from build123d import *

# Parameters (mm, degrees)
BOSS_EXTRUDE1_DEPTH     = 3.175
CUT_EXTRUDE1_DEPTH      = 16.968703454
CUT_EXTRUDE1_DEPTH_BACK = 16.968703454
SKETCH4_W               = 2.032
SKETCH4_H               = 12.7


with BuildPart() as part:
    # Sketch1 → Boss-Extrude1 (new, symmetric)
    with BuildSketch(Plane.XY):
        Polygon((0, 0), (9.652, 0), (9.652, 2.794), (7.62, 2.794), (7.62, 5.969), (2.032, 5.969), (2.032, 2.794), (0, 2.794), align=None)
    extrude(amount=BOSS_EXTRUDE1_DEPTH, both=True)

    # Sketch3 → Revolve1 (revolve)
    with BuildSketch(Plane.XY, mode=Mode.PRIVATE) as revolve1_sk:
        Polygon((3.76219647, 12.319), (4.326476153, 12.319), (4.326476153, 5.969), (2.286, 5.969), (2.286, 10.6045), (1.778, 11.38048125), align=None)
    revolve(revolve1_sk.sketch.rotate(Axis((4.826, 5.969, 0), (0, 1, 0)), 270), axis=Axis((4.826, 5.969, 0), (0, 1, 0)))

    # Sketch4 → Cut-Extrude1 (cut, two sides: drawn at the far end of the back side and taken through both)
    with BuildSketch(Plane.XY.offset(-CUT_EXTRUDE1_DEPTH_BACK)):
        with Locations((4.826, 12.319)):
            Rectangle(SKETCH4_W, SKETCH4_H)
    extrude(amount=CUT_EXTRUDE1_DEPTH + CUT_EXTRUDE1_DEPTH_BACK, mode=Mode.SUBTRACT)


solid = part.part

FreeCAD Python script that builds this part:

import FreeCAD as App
import Part
import Sketcher

V = App.Vector
Q = App.Units.Quantity


def add_polygon(sketch, points):
    """Adds a closed chain of lines whose ends are joined by coincident constraints."""
    first, n = sketch.GeometryCount, len(points)
    for a, b in zip(points, points[1:] + points[:1]):
        sketch.addGeometry(Part.LineSegment(App.Vector(*a, 0), App.Vector(*b, 0)), False)
    for i in range(n):
        sketch.addConstraint(Sketcher.Constraint("Coincident", first + i, 2, first + (i + 1) % n, 1))

doc = App.newDocument("Part")
body = doc.addObject("PartDesign::Body", "Body")

# Sketch on XY plane
sketch1 = body.newObject("Sketcher::SketchObject", "Sketch")
sketch1.AttachmentSupport = (doc.getObject("XY_Plane"), [""])
sketch1.MapMode = "FlatFace"
add_polygon(sketch1, [(0, 0), (9.7, 0), (9.7, 2.8), (7.6, 2.8), (7.6, 6), (2, 6), (2, 2.8), (0, 2.8)])  # lines 0-7
sketch1.addConstraint(Sketcher.Constraint("Horizontal", 0))
sketch1.addConstraint(Sketcher.Constraint("Vertical", 1))
sketch1.addConstraint(Sketcher.Constraint("Horizontal", 2))
sketch1.addConstraint(Sketcher.Constraint("Vertical", 3))
sketch1.addConstraint(Sketcher.Constraint("Horizontal", 4))
sketch1.addConstraint(Sketcher.Constraint("Vertical", 5))
sketch1.addConstraint(Sketcher.Constraint("Horizontal", 6))
sketch1.addConstraint(Sketcher.Constraint("Vertical", 7))
sketch1.addConstraint(Sketcher.Constraint("Coincident", 7, 2, -1, 1))
sketch1.addConstraint(Sketcher.Constraint("Horizontal", 2, 2, 5, 2))
sketch1.addConstraint(Sketcher.Constraint("Equal", 2, 6))
sketch1.addConstraint(Sketcher.Constraint("DistanceX", 0, 1, 0, 2, Q("0.38 in")))
sketch1.addConstraint(Sketcher.Constraint("DistanceX", 2, 2, 2, 1, Q("0.08 in")))
sketch1.addConstraint(Sketcher.Constraint("DistanceY", 1, 1, 1, 2, Q("0.11 in")))
sketch1.addConstraint(Sketcher.Constraint("DistanceY", 3, 1, 3, 2, Q("0.125 in")))
pad1 = body.newObject("PartDesign::Pad", "Pad")
pad1.Profile = sketch1
pad1.Length = Q("0.25 in")
pad1.Midplane = True

# Sketch on XY plane
sketch2 = body.newObject("Sketcher::SketchObject", "Sketch001")
sketch2.AttachmentSupport = (doc.getObject("XY_Plane"), [""])
sketch2.MapMode = "FlatFace"
add_polygon(sketch2, [(4.3, 12.3), (3.8, 12.3), (1.8, 11.4), (2.3, 10.6), (2.3, 6), (4.3, 6)])  # lines 0-5
sketch2.addGeometry(Part.LineSegment(V(4.8, 6, 0), V(4.8, 12.3, 0)), True)  # axis
sketch2.addConstraint(Sketcher.Constraint("Horizontal", 0))
sketch2.addConstraint(Sketcher.Constraint("Vertical", 3))
sketch2.addConstraint(Sketcher.Constraint("Horizontal", 4))
sketch2.addConstraint(Sketcher.Constraint("Vertical", 5))
sketch2.addConstraint(Sketcher.Constraint("Vertical", 6))
sketch2.addConstraint(Sketcher.Constraint("Horizontal", 4, 2, 6, 1))
sketch2.addConstraint(Sketcher.Constraint("Horizontal", 5, 2, 6, 2))
sketch2.addConstraint(Sketcher.Constraint("DistanceY", 5, 1, 5, 2, Q("0.25 in")))
sketch2.addConstraint(Sketcher.Constraint("DistanceX", 3, 2, 6, 1, Q("0.1 in")))
sketch2.addConstraint(Sketcher.Constraint("DistanceX", -1, 1, 1, 2, Q("0.07 in")))
sketch2.addConstraint(Sketcher.Constraint("DistanceX", -1, 1, 2, 2, Q("0.09 in")))
sketch2.addConstraint(Sketcher.Constraint("DistanceY", 3, 2, 3, 1, Q("0.1825 in")))
sketch2.addConstraint(Sketcher.Constraint("DistanceY", -1, 1, 0, 2, Q("0.485 in")))
sketch2.addConstraint(Sketcher.Constraint("DistanceX", 0, 2, 0, 1, 0.56428))
sketch2.addConstraint(Sketcher.Constraint("Distance", 1, 2.194961))
sketch2.addConstraint(Sketcher.Constraint("DistanceX", 4, 1, 4, 2, 2.040476))
revolution = body.newObject("PartDesign::Revolution", "Revolution")
revolution.Profile = sketch2
revolution.ReferenceAxis = (sketch2, ["Axis0"])
revolution.Angle = 360

# Sketch on XY plane
sketch3 = body.newObject("Sketcher::SketchObject", "Sketch002")
sketch3.AttachmentSupport = (doc.getObject("XY_Plane"), [""])
sketch3.MapMode = "FlatFace"
add_polygon(sketch3, [(3.8, 18.7), (3.8, 6), (5.8, 6), (5.8, 18.7)])  # lines 0-3
sketch3.addConstraint(Sketcher.Constraint("Vertical", 0))
sketch3.addConstraint(Sketcher.Constraint("Horizontal", 1))
sketch3.addConstraint(Sketcher.Constraint("Vertical", 2))
sketch3.addConstraint(Sketcher.Constraint("Horizontal", 3))
sketch3.addConstraint(Sketcher.Constraint("DistanceY", 0, 2, 0, 1, Q("0.5 in")))
sketch3.addConstraint(Sketcher.Constraint("DistanceX", 1, 1, 1, 2, Q("0.08 in")))
sketch3.addConstraint(Sketcher.Constraint("DistanceX", -1, 1, 0, 2, Q("0.15 in")))
sketch3.addConstraint(Sketcher.Constraint("DistanceY", -1, 1, 0, 2, Q("0.235 in")))
pocket1 = body.newObject("PartDesign::Pocket", "Pocket")
pocket1.Profile = sketch3
pocket1.Type = "ThroughAll"
pocket1.Midplane = True

doc.recompute()
